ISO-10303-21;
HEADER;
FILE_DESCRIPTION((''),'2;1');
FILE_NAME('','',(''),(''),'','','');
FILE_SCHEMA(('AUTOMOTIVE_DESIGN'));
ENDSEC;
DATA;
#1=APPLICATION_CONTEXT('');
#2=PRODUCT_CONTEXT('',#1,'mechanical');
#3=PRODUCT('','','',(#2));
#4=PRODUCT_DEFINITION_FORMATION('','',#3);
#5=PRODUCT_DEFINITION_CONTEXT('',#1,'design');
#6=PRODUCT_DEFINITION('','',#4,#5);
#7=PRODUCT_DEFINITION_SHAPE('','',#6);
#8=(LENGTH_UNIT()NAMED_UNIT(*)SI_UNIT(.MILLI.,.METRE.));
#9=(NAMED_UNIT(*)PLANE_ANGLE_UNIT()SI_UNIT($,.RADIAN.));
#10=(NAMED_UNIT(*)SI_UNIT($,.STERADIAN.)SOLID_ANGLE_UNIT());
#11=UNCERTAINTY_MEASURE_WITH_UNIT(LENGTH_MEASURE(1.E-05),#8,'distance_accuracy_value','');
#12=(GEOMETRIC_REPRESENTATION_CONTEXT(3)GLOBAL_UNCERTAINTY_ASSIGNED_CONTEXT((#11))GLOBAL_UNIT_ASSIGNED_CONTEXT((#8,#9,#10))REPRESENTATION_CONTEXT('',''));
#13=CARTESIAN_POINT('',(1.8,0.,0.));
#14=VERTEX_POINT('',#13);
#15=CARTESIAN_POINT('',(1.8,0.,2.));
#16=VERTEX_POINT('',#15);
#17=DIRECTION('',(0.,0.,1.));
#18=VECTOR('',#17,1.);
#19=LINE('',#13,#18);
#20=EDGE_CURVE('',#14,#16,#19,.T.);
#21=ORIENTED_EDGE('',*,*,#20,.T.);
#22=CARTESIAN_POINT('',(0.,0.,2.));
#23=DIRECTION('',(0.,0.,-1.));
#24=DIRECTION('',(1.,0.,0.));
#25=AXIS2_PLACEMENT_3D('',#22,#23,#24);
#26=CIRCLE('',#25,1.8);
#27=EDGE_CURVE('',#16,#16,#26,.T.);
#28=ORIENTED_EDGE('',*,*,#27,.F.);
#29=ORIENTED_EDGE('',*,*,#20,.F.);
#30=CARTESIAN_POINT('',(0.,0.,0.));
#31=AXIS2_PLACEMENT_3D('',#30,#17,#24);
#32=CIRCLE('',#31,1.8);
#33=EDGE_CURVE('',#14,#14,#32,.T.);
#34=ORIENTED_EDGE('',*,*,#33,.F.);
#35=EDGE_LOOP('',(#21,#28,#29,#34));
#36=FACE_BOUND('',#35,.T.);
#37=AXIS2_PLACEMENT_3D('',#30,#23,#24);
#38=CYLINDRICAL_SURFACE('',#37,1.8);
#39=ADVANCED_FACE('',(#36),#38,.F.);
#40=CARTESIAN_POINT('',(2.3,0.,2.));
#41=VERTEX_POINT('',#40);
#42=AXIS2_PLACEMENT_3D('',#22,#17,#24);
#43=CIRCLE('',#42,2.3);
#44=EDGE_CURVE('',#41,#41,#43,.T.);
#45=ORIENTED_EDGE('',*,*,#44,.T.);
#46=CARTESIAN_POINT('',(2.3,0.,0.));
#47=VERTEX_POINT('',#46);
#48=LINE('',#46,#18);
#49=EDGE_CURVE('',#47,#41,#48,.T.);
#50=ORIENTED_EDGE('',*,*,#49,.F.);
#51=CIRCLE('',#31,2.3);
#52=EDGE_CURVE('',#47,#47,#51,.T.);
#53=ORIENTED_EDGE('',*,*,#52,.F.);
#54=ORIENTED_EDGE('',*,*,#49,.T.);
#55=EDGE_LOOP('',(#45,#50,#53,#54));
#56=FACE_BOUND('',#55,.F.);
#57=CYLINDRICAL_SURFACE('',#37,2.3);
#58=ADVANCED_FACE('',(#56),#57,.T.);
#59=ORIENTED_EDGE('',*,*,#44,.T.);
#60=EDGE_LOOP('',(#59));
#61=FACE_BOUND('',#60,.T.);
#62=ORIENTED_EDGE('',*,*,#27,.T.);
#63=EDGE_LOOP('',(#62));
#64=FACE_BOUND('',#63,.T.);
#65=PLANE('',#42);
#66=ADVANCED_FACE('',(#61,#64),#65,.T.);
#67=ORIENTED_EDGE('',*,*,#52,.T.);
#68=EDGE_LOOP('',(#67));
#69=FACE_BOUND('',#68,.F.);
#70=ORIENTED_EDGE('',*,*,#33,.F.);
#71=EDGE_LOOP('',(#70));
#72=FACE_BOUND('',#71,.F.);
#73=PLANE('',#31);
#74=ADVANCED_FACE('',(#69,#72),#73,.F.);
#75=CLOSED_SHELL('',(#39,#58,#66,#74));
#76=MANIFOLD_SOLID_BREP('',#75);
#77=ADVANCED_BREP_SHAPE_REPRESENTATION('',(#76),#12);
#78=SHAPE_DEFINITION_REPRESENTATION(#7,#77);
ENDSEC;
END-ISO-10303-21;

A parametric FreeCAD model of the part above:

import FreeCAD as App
import Part
import Sketcher

V = App.Vector

doc = App.newDocument("Part")
body = doc.addObject("PartDesign::Body", "Body")

# Sketch on XY plane
sketch1 = body.newObject("Sketcher::SketchObject", "Sketch")
sketch1.AttachmentSupport = (doc.getObject("XY_Plane"), [""])
sketch1.MapMode = "FlatFace"
sketch1.addGeometry(Part.Circle(V(0, 0, 0), V(0, 0, 1), 1.8), False)
sketch1.addConstraint([
    Sketcher.Constraint("Coincident", 0, 3, -1, 1),
    Sketcher.Constraint("Diameter", 0, 3.6),
])
pad1 = body.newObject("PartDesign::Pad", "Pad")
pad1.Profile = sketch1
pad1.Length = 7
body2 = doc.addObject("PartDesign::Body", "Body001")

# Sketch on XY plane
sketch2 = body2.newObject("Sketcher::SketchObject", "Sketch001")
sketch2.AttachmentSupport = (doc.getObject("XY_Plane001"), [""])
sketch2.MapMode = "FlatFace"
sketch2.addGeometry(Part.Circle(V(0, 0, 0), V(0, 0, 1), 2.3), False)
sketch2.addConstraint([
    Sketcher.Constraint("Coincident", 0, 3, -1, 1),
    Sketcher.Constraint("Diameter", 0, 4.6),
])
pad2 = body2.newObject("PartDesign::Pad", "Pad001")
pad2.Profile = sketch2
pad2.Length = 2
doc.recompute()

boolean = body2.newObject("PartDesign::Boolean", "Boolean")
boolean.Type = "Cut"
boolean.addObjects([body])

doc.recompute()
